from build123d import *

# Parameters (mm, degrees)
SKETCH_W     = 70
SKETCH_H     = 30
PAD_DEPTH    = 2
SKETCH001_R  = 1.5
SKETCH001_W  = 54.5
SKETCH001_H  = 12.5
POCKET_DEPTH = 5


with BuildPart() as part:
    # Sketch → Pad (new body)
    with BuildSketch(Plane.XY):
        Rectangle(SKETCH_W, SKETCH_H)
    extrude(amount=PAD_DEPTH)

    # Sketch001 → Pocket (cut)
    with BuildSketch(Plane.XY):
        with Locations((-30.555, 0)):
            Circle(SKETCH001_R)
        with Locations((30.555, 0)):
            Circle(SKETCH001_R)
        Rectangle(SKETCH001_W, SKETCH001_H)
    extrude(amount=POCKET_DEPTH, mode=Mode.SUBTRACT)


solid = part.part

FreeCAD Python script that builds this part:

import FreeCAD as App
import Part
import Sketcher
Q = App.Units.Quantity

doc = App.newDocument("Part")
body = doc.addObject("PartDesign::Body", "Body")

# Sketch on XY plane
sketch1 = body.newObject("Sketcher::SketchObject", "Sketch")
sketch1.AttachmentSupport = (doc.getObject("XY_Plane"), [""])
sketch1.MapMode = "FlatFace"
sketch1.addGeometry(Part.LineSegment(App.Vector(-35, 15, 0), App.Vector(-35, -15, 0)), False)
sketch1.addGeometry(Part.LineSegment(App.Vector(-35, -15, 0), App.Vector(35, -15, 0)), False)
sketch1.addGeometry(Part.LineSegment(App.Vector(35, -15, 0), App.Vector(35, 15, 0)), False)
sketch1.addGeometry(Part.LineSegment(App.Vector(35, 15, 0), App.Vector(-35, 15, 0)), False)
sketch1.addConstraint(Sketcher.Constraint("Coincident", 0, 2, 1, 1))
sketch1.addConstraint(Sketcher.Constraint("Coincident", 1, 2, 2, 1))
sketch1.addConstraint(Sketcher.Constraint("Coincident", 2, 2, 3, 1))
sketch1.addConstraint(Sketcher.Constraint("Coincident", 3, 2, 0, 1))
sketch1.addConstraint(Sketcher.Constraint("Vertical", 0))
sketch1.addConstraint(Sketcher.Constraint("Horizontal", 1))
sketch1.addConstraint(Sketcher.Constraint("Vertical", 2))
sketch1.addConstraint(Sketcher.Constraint("Horizontal", 3))
sketch1.addConstraint(Sketcher.Constraint("Symmetric", 0, 2, 2, 2, -1, 1))
sketch1.addConstraint(Sketcher.Constraint("DistanceX", 1, 1, 1, 2, Q("70 mm")))
sketch1.addConstraint(Sketcher.Constraint("DistanceY", 0, 2, 0, 1, Q("30 mm")))
pad1 = body.newObject("PartDesign::Pad", "Pad")
pad1.Profile = sketch1
pad1.Length = 2

# Sketch on XY plane
sketch2 = body.newObject("Sketcher::SketchObject", "Sketch001")
sketch2.AttachmentSupport = (doc.getObject("XY_Plane"), [""])
sketch2.MapMode = "FlatFace"
sketch2.addGeometry(Part.Circle(App.Vector(-30.6, 0, 0), App.Vector(0, 0, 1), 1.5), False)
sketch2.addGeometry(Part.Circle(App.Vector(30.6, 0, 0), App.Vector(0, 0, 1), 1.5), False)
sketch2.addGeometry(Part.LineSegment(App.Vector(-27.2, 6.2, 0), App.Vector(-27.2, -6.2, 0)), False)
sketch2.addGeometry(Part.LineSegment(App.Vector(-27.2, -6.2, 0), App.Vector(27.2, -6.2, 0)), False)
sketch2.addGeometry(Part.LineSegment(App.Vector(27.2, -6.2, 0), App.Vector(27.2, 6.2, 0)), False)
sketch2.addGeometry(Part.LineSegment(App.Vector(27.2, 6.2, 0), App.Vector(-27.2, 6.2, 0)), False)
sketch2.addConstraint(Sketcher.Constraint("Coincident", 2, 2, 3, 1))
sketch2.addConstraint(Sketcher.Constraint("Coincident", 3, 2, 4, 1))
sketch2.addConstraint(Sketcher.Constraint("Coincident", 4, 2, 5, 1))
sketch2.addConstraint(Sketcher.Constraint("Coincident", 5, 2, 2, 1))
sketch2.addConstraint(Sketcher.Constraint("Vertical", 2))
sketch2.addConstraint(Sketcher.Constraint("Horizontal", 3))
sketch2.addConstraint(Sketcher.Constraint("Vertical", 4))
sketch2.addConstraint(Sketcher.Constraint("Horizontal", 5))
sketch2.addConstraint(Sketcher.Constraint("Equal", 0, 1))
sketch2.addConstraint(Sketcher.Constraint("Symmetric", 0, 3, 1, 3, -1, 1))
sketch2.addConstraint(Sketcher.Constraint("Symmetric", 2, 2, 4, 2, -1, 1))
sketch2.addConstraint(Sketcher.Constraint("PointOnObject", 0, 3, -1))
sketch2.addConstraint(Sketcher.Constraint("Diameter", 0, Q("3 mm")))
sketch2.addConstraint(Sketcher.Constraint("DistanceX", 3, 1, 3, 2, Q("54.5 mm")))
sketch2.addConstraint(Sketcher.Constraint("DistanceY", 2, 2, 2, 1, Q("12.5 mm")))
sketch2.addConstraint(Sketcher.Constraint("DistanceX", 0, 3, 1, 3, Q("61.11 mm")))
pocket1 = body.newObject("PartDesign::Pocket", "Pocket")
pocket1.Profile = sketch2
pocket1.Length = 5
pocket1.Reversed = True

doc.recompute()
